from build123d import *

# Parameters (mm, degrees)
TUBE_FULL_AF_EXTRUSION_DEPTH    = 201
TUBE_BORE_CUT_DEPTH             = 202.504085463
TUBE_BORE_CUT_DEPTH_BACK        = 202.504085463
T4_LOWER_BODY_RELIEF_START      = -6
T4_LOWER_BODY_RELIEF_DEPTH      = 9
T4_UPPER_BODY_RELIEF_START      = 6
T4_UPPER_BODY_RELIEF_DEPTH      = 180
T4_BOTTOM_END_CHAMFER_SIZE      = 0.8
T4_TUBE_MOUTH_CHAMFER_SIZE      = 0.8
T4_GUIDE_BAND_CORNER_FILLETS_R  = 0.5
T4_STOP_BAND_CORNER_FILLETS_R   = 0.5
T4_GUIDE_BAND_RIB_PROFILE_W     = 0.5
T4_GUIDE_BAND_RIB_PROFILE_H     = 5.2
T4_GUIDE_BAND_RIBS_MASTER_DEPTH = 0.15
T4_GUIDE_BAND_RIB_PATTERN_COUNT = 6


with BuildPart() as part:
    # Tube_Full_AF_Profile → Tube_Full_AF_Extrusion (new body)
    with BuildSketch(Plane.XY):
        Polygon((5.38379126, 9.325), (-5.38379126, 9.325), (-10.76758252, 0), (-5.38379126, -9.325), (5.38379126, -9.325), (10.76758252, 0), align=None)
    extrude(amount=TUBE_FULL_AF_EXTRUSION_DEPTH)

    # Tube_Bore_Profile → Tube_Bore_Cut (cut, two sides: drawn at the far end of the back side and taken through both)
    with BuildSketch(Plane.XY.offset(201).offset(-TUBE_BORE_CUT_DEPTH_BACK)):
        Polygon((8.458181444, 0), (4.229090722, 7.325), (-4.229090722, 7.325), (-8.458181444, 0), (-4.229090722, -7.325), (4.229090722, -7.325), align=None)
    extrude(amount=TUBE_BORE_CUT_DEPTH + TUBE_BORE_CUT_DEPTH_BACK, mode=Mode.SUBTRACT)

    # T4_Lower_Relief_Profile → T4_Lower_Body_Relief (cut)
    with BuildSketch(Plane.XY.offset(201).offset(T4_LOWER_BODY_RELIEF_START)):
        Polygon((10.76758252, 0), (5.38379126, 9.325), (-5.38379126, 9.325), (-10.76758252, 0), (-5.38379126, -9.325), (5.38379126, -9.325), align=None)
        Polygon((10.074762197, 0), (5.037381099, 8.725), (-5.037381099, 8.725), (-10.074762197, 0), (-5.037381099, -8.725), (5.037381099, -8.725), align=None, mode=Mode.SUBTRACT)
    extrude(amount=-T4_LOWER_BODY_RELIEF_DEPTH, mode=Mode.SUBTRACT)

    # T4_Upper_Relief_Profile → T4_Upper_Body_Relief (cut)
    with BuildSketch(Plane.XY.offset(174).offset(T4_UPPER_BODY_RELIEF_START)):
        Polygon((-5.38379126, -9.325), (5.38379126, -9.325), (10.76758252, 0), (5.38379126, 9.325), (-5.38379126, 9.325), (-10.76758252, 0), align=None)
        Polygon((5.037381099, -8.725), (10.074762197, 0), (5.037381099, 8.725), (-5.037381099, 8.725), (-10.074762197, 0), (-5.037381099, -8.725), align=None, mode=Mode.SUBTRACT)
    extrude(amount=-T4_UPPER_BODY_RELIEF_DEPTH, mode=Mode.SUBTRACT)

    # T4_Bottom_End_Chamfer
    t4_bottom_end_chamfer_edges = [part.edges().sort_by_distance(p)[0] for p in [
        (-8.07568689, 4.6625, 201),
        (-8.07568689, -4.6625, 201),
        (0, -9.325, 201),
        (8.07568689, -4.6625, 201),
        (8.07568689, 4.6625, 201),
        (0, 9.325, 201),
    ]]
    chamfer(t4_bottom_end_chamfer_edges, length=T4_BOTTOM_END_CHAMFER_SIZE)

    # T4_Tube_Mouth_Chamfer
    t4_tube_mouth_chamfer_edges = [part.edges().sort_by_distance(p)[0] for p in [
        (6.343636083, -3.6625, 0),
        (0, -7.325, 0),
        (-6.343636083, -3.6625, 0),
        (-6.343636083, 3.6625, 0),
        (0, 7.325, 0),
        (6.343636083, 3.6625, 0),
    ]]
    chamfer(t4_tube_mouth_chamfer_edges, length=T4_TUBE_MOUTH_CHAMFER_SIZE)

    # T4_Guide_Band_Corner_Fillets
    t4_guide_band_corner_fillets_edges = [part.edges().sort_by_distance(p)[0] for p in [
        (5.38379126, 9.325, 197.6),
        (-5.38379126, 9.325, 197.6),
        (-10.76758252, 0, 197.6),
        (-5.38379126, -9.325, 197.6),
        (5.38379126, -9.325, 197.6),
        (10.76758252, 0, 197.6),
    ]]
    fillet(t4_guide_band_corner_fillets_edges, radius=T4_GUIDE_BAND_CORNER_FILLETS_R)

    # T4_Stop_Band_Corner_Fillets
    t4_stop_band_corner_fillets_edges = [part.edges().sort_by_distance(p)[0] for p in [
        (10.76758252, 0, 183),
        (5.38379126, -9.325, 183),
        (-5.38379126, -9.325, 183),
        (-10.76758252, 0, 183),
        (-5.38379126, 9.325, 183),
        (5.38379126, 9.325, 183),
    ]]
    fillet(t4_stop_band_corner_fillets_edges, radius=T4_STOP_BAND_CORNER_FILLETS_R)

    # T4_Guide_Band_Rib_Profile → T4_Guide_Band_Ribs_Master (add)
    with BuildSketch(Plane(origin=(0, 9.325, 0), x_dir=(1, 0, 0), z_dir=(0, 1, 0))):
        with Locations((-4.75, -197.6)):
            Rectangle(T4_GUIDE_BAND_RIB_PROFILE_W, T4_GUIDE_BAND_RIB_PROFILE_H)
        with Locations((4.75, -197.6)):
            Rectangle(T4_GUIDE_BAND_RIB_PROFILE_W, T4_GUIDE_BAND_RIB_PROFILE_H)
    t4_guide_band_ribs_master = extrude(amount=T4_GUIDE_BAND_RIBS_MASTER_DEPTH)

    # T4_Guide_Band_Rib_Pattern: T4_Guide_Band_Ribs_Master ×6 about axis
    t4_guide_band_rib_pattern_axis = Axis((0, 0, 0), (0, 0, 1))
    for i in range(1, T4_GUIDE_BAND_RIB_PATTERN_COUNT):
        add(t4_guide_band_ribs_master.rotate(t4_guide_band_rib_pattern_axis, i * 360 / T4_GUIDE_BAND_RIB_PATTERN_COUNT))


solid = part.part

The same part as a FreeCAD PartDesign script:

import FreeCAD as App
import Part
import Sketcher
from FreeCAD import Vector
Q = App.Units.Quantity


def edges_at(feature, points):
    """Names of the edges that pass closest to the given points."""
    edges = feature.Shape.Edges
    near = lambda p: min(range(len(edges)), key=lambda i: edges[i].distToShape(Part.Vertex(*p))[0])
    return sorted({f"Edge{near(p) + 1}" for p in points})


def add_polygon(sketch, points):
    """Adds a closed chain of lines whose ends are joined by coincident constraints."""
    first, n = sketch.GeometryCount, len(points)
    for a, b in zip(points, points[1:] + points[:1]):
        sketch.addGeometry(Part.LineSegment(App.Vector(*a, 0), App.Vector(*b, 0)), False)
    for i in range(n):
        sketch.addConstraint(Sketcher.Constraint("Coincident", first + i, 2, first + (i + 1) % n, 1))

doc = App.newDocument("Part")
body = doc.addObject("PartDesign::Body", "Body")

sketch1 = body.newObject("Sketcher::SketchObject", "Sketch")
sketch1.AttachmentSupport = (doc.getObject("XY_Plane"), [""])
sketch1.MapMode = "FlatFace"
add_polygon(sketch1, [(5, 9), (-5, 9), (-11, 0), (-5, -9), (5, -9), (11, 0)])
sketch1.addConstraint([
    Sketcher.Constraint("Horizontal", 0),
    Sketcher.Constraint("Horizontal", 3),
    Sketcher.Constraint("Symmetric", 0, 2, 3, 2, -1, 1),
    Sketcher.Constraint("Symmetric", 1, 2, 4, 2, -1, 1),
    Sketcher.Constraint("PointOnObject", 1, 2, -1),
    Sketcher.Constraint("Parallel", 2, 5),
    Sketcher.Constraint("Vertical", 0, 2, 2, 2),
    Sketcher.Constraint("Angle", 1, Q("-120 deg")),
    Sketcher.Constraint("DistanceY", 2, 2, 0, 2, 18.65),
    Sketcher.Constraint("DistanceX", 0, 2, 0, 1, 10.767583),
])
pad1 = body.newObject("PartDesign::Pad", "Pad")
pad1.Profile = sketch1
pad1.Length = 201

sketch2 = body.newObject("Sketcher::SketchObject", "Sketch001")
sketch2.AttachmentSupport = (doc.getObject("XY_Plane"), [""])
sketch2.MapMode = "FlatFace"
sketch2.AttachmentOffset = App.Placement(Vector(0, 0, 201), App.Rotation())
add_polygon(sketch2, [(8, 0), (4, 7), (-4, 7), (-8, 0), (-4, -7), (4, -7)])
sketch2.addConstraint([
    Sketcher.Constraint("Horizontal", 1),
    Sketcher.Constraint("Horizontal", 4),
    Sketcher.Constraint("Symmetric", 0, 2, 3, 2, -1, 1),
    Sketcher.Constraint("Symmetric", 2, 2, 5, 2, -1, 1),
    Sketcher.Constraint("PointOnObject", 2, 2, -1),
    Sketcher.Constraint("Parallel", 2, 5),
    Sketcher.Constraint("Vertical", 1, 2, 3, 2),
    Sketcher.Constraint("Angle", 0, Q("120 deg")),
    Sketcher.Constraint("DistanceY", 3, 2, 1, 2, 14.65),
    Sketcher.Constraint("DistanceX", 1, 2, 1, 1, 8.458181),
])
pocket1 = body.newObject("PartDesign::Pocket", "Pocket")
pocket1.Profile = sketch2
pocket1.Type = "ThroughAll"
pocket1.Midplane = True

sketch3 = body.newObject("Sketcher::SketchObject", "Sketch002")
sketch3.AttachmentSupport = (doc.getObject("XY_Plane"), [""])
sketch3.MapMode = "FlatFace"
sketch3.AttachmentOffset = App.Placement(Vector(0, 0, 195), App.Rotation())
add_polygon(sketch3, [(11, 0), (5, 9), (-5, 9), (-11, 0), (-5, -9), (5, -9)])
add_polygon(sketch3, [(5, 9), (10, 0), (5, -9), (-5, -9), (-10, 0), (-5, 9)])
sketch3.addConstraint([
    Sketcher.Constraint("Horizontal", 1),
    Sketcher.Constraint("Horizontal", 4),
    Sketcher.Constraint("Horizontal", 8),
    Sketcher.Constraint("Horizontal", 11),
    Sketcher.Constraint("Symmetric", 0, 2, 3, 2, -1, 1),
    Sketcher.Constraint("Symmetric", 2, 2, 5, 2, -1, 1),
    Sketcher.Constraint("Symmetric", 6, 2, 9, 2, -1, 1),
    Sketcher.Constraint("Symmetric", 7, 2, 10, 2, -1, 1),
    Sketcher.Constraint("PointOnObject", 2, 2, -1),
    Sketcher.Constraint("PointOnObject", 6, 2, -1),
    Sketcher.Constraint("Parallel", 2, 5),
    Sketcher.Constraint("Parallel", 3, 6),
    Sketcher.Constraint("Parallel", 5, 7),
    Sketcher.Constraint("Parallel", 6, 9),
    Sketcher.Constraint("Vertical", 1, 2, 3, 2),
    Sketcher.Constraint("Angle", 0, Q("120 deg")),
    Sketcher.Constraint("DistanceY", 4, 2, 7, 2, 0.6),
    Sketcher.Constraint("DistanceY", 3, 2, 1, 2, 18.65),
    Sketcher.Constraint("DistanceX", 7, 2, 5, 2, 5.730201),
    Sketcher.Constraint("DistanceX", 1, 2, 1, 1, 10.767583),
])
pocket2 = body.newObject("PartDesign::Pocket", "Pocket001")
pocket2.Profile = sketch3
pocket2.Length = 9

sketch4 = body.newObject("Sketcher::SketchObject", "Sketch003")
sketch4.AttachmentSupport = (doc.getObject("XY_Plane"), [""])
sketch4.MapMode = "FlatFace"
sketch4.AttachmentOffset = App.Placement(Vector(0, 0, 180), App.Rotation())
add_polygon(sketch4, [(-5, -9), (5, -9), (11, 0), (5, 9), (-5, 9), (-11, 0)])
add_polygon(sketch4, [(10, 0), (5, -9), (-5, -9), (-10, 0), (-5, 9), (5, 9)])
sketch4.addConstraint([
    Sketcher.Constraint("Horizontal", 0),
    Sketcher.Constraint("Horizontal", 3),
    Sketcher.Constraint("Horizontal", 7),
    Sketcher.Constraint("Horizontal", 10),
    Sketcher.Constraint("Symmetric", 0, 2, 3, 2, -1, 1),
    Sketcher.Constraint("Symmetric", 1, 2, 4, 2, -1, 1),
    Sketcher.Constraint("Symmetric", 6, 2, 9, 2, -1, 1),
    Sketcher.Constraint("Symmetric", 8, 2, 11, 2, -1, 1),
    Sketcher.Constraint("PointOnObject", 1, 2, -1),
    Sketcher.Constraint("PointOnObject", 8, 2, -1),
    Sketcher.Constraint("Parallel", 2, 5),
    Sketcher.Constraint("Parallel", 4, 6),
    Sketcher.Constraint("Parallel", 5, 8),
    Sketcher.Constraint("Parallel", 8, 11),
    Sketcher.Constraint("Vertical", 0, 2, 2, 2),
    Sketcher.Constraint("Angle", 1, Q("60 deg")),
    Sketcher.Constraint("DistanceY", 0, 2, 6, 2, 0.6),
    Sketcher.Constraint("DistanceY", 0, 2, 2, 2, 18.65),
    Sketcher.Constraint("DistanceX", 6, 2, 1, 2, 5.730201),
    Sketcher.Constraint("DistanceX", 0, 1, 0, 2, 10.767583),
])
pocket3 = body.newObject("PartDesign::Pocket", "Pocket002")
pocket3.Profile = sketch4
pocket3.Length = 180
doc.recompute()

chamfer = body.newObject("PartDesign::Chamfer", "Chamfer")
chamfer.Base = (pocket3, edges_at(pocket3, [
    (-8.076, 4.662, 201),
    (-8.076, -4.662, 201),
    (0, -9.325, 201),
    (8.076, -4.662, 201),
    (8.076, 4.662, 201),
    (0, 9.325, 201),
]))
chamfer.Size = 0.8
doc.recompute()

chamfer2 = body.newObject("PartDesign::Chamfer", "Chamfer001")
chamfer2.Base = (chamfer, edges_at(chamfer, [
    (6.344, -3.663, 0),
    (0, -7.325, 0),
    (-6.344, -3.663, 0),
    (-6.344, 3.663, 0),
    (0, 7.325, 0),
    (6.344, 3.663, 0),
]))
chamfer2.Size = 0.8
doc.recompute()

fillet = body.newObject("PartDesign::Fillet", "Fillet")
fillet.Base = (chamfer2, edges_at(chamfer2, [
    (5.384, 9.325, 197.6),
    (-5.384, 9.325, 197.6),
    (-10.768, 0, 197.6),
    (-5.384, -9.325, 197.6),
    (5.384, -9.325, 197.6),
    (10.768, 0, 197.6),
]))
fillet.Radius = 0.5
doc.recompute()

fillet2 = body.newObject("PartDesign::Fillet", "Fillet001")
fillet2.Base = (fillet, edges_at(fillet, [
    (10.768, 0, 183),
    (5.384, -9.325, 183),
    (-5.384, -9.325, 183),
    (-10.768, 0, 183),
    (-5.384, 9.325, 183),
    (5.384, 9.325, 183),
]))
fillet2.Radius = 0.5

sketch5 = body.newObject("Sketcher::SketchObject", "Sketch004")
sketch5.AttachmentSupport = (doc.getObject("XZ_Plane"), [""])
sketch5.MapMode = "FlatFace"
sketch5.AttachmentOffset = App.Placement(Vector(0, 0, -9.325), App.Rotation())
add_polygon(sketch5, [(-5, 195), (-5, 200.2), (-4.5, 200.2), (-4.5, 195)])
add_polygon(sketch5, [(4.5, 195), (4.5, 200.2), (5, 200.2), (5, 195)])
sketch5.addConstraint([
    Sketcher.Constraint("Vertical", 0),
    Sketcher.Constraint("Horizontal", 1),
    Sketcher.Constraint("Vertical", 2),
    Sketcher.Constraint("Horizontal", 3),
    Sketcher.Constraint("Vertical", 4),
    Sketcher.Constraint("Horizontal", 5),
    Sketcher.Constraint("Vertical", 6),
    Sketcher.Constraint("Horizontal", 7),
    Sketcher.Constraint("Symmetric", 1, 2, 4, 2, -2),
    Sketcher.Constraint("Symmetric", 3, 2, 6, 2, -2),
    Sketcher.Constraint("DistanceX", 1, 1, 1, 2, 0.5),
    Sketcher.Constraint("DistanceY", 0, 1, 0, 2, 5.2),
    Sketcher.Constraint("DistanceX", 0, 2, -1, 1, 5.0),
    Sketcher.Constraint("DistanceY", -1, 1, 2, 2, 195.0),
])
pad2 = body.newObject("PartDesign::Pad", "Pad001")
pad2.Profile = sketch5
pad2.Length = 0.15
pad2.Reversed = True
doc.recompute()

polarpattern = body.newObject("PartDesign::PolarPattern", "PolarPattern")
polarpattern.Originals = [pad2]
polarpattern.Axis = (doc.getObject("Z_Axis"), [""])
polarpattern.Angle = 360
polarpattern.Occurrences = 6
body.Tip = polarpattern

doc.recompute()
